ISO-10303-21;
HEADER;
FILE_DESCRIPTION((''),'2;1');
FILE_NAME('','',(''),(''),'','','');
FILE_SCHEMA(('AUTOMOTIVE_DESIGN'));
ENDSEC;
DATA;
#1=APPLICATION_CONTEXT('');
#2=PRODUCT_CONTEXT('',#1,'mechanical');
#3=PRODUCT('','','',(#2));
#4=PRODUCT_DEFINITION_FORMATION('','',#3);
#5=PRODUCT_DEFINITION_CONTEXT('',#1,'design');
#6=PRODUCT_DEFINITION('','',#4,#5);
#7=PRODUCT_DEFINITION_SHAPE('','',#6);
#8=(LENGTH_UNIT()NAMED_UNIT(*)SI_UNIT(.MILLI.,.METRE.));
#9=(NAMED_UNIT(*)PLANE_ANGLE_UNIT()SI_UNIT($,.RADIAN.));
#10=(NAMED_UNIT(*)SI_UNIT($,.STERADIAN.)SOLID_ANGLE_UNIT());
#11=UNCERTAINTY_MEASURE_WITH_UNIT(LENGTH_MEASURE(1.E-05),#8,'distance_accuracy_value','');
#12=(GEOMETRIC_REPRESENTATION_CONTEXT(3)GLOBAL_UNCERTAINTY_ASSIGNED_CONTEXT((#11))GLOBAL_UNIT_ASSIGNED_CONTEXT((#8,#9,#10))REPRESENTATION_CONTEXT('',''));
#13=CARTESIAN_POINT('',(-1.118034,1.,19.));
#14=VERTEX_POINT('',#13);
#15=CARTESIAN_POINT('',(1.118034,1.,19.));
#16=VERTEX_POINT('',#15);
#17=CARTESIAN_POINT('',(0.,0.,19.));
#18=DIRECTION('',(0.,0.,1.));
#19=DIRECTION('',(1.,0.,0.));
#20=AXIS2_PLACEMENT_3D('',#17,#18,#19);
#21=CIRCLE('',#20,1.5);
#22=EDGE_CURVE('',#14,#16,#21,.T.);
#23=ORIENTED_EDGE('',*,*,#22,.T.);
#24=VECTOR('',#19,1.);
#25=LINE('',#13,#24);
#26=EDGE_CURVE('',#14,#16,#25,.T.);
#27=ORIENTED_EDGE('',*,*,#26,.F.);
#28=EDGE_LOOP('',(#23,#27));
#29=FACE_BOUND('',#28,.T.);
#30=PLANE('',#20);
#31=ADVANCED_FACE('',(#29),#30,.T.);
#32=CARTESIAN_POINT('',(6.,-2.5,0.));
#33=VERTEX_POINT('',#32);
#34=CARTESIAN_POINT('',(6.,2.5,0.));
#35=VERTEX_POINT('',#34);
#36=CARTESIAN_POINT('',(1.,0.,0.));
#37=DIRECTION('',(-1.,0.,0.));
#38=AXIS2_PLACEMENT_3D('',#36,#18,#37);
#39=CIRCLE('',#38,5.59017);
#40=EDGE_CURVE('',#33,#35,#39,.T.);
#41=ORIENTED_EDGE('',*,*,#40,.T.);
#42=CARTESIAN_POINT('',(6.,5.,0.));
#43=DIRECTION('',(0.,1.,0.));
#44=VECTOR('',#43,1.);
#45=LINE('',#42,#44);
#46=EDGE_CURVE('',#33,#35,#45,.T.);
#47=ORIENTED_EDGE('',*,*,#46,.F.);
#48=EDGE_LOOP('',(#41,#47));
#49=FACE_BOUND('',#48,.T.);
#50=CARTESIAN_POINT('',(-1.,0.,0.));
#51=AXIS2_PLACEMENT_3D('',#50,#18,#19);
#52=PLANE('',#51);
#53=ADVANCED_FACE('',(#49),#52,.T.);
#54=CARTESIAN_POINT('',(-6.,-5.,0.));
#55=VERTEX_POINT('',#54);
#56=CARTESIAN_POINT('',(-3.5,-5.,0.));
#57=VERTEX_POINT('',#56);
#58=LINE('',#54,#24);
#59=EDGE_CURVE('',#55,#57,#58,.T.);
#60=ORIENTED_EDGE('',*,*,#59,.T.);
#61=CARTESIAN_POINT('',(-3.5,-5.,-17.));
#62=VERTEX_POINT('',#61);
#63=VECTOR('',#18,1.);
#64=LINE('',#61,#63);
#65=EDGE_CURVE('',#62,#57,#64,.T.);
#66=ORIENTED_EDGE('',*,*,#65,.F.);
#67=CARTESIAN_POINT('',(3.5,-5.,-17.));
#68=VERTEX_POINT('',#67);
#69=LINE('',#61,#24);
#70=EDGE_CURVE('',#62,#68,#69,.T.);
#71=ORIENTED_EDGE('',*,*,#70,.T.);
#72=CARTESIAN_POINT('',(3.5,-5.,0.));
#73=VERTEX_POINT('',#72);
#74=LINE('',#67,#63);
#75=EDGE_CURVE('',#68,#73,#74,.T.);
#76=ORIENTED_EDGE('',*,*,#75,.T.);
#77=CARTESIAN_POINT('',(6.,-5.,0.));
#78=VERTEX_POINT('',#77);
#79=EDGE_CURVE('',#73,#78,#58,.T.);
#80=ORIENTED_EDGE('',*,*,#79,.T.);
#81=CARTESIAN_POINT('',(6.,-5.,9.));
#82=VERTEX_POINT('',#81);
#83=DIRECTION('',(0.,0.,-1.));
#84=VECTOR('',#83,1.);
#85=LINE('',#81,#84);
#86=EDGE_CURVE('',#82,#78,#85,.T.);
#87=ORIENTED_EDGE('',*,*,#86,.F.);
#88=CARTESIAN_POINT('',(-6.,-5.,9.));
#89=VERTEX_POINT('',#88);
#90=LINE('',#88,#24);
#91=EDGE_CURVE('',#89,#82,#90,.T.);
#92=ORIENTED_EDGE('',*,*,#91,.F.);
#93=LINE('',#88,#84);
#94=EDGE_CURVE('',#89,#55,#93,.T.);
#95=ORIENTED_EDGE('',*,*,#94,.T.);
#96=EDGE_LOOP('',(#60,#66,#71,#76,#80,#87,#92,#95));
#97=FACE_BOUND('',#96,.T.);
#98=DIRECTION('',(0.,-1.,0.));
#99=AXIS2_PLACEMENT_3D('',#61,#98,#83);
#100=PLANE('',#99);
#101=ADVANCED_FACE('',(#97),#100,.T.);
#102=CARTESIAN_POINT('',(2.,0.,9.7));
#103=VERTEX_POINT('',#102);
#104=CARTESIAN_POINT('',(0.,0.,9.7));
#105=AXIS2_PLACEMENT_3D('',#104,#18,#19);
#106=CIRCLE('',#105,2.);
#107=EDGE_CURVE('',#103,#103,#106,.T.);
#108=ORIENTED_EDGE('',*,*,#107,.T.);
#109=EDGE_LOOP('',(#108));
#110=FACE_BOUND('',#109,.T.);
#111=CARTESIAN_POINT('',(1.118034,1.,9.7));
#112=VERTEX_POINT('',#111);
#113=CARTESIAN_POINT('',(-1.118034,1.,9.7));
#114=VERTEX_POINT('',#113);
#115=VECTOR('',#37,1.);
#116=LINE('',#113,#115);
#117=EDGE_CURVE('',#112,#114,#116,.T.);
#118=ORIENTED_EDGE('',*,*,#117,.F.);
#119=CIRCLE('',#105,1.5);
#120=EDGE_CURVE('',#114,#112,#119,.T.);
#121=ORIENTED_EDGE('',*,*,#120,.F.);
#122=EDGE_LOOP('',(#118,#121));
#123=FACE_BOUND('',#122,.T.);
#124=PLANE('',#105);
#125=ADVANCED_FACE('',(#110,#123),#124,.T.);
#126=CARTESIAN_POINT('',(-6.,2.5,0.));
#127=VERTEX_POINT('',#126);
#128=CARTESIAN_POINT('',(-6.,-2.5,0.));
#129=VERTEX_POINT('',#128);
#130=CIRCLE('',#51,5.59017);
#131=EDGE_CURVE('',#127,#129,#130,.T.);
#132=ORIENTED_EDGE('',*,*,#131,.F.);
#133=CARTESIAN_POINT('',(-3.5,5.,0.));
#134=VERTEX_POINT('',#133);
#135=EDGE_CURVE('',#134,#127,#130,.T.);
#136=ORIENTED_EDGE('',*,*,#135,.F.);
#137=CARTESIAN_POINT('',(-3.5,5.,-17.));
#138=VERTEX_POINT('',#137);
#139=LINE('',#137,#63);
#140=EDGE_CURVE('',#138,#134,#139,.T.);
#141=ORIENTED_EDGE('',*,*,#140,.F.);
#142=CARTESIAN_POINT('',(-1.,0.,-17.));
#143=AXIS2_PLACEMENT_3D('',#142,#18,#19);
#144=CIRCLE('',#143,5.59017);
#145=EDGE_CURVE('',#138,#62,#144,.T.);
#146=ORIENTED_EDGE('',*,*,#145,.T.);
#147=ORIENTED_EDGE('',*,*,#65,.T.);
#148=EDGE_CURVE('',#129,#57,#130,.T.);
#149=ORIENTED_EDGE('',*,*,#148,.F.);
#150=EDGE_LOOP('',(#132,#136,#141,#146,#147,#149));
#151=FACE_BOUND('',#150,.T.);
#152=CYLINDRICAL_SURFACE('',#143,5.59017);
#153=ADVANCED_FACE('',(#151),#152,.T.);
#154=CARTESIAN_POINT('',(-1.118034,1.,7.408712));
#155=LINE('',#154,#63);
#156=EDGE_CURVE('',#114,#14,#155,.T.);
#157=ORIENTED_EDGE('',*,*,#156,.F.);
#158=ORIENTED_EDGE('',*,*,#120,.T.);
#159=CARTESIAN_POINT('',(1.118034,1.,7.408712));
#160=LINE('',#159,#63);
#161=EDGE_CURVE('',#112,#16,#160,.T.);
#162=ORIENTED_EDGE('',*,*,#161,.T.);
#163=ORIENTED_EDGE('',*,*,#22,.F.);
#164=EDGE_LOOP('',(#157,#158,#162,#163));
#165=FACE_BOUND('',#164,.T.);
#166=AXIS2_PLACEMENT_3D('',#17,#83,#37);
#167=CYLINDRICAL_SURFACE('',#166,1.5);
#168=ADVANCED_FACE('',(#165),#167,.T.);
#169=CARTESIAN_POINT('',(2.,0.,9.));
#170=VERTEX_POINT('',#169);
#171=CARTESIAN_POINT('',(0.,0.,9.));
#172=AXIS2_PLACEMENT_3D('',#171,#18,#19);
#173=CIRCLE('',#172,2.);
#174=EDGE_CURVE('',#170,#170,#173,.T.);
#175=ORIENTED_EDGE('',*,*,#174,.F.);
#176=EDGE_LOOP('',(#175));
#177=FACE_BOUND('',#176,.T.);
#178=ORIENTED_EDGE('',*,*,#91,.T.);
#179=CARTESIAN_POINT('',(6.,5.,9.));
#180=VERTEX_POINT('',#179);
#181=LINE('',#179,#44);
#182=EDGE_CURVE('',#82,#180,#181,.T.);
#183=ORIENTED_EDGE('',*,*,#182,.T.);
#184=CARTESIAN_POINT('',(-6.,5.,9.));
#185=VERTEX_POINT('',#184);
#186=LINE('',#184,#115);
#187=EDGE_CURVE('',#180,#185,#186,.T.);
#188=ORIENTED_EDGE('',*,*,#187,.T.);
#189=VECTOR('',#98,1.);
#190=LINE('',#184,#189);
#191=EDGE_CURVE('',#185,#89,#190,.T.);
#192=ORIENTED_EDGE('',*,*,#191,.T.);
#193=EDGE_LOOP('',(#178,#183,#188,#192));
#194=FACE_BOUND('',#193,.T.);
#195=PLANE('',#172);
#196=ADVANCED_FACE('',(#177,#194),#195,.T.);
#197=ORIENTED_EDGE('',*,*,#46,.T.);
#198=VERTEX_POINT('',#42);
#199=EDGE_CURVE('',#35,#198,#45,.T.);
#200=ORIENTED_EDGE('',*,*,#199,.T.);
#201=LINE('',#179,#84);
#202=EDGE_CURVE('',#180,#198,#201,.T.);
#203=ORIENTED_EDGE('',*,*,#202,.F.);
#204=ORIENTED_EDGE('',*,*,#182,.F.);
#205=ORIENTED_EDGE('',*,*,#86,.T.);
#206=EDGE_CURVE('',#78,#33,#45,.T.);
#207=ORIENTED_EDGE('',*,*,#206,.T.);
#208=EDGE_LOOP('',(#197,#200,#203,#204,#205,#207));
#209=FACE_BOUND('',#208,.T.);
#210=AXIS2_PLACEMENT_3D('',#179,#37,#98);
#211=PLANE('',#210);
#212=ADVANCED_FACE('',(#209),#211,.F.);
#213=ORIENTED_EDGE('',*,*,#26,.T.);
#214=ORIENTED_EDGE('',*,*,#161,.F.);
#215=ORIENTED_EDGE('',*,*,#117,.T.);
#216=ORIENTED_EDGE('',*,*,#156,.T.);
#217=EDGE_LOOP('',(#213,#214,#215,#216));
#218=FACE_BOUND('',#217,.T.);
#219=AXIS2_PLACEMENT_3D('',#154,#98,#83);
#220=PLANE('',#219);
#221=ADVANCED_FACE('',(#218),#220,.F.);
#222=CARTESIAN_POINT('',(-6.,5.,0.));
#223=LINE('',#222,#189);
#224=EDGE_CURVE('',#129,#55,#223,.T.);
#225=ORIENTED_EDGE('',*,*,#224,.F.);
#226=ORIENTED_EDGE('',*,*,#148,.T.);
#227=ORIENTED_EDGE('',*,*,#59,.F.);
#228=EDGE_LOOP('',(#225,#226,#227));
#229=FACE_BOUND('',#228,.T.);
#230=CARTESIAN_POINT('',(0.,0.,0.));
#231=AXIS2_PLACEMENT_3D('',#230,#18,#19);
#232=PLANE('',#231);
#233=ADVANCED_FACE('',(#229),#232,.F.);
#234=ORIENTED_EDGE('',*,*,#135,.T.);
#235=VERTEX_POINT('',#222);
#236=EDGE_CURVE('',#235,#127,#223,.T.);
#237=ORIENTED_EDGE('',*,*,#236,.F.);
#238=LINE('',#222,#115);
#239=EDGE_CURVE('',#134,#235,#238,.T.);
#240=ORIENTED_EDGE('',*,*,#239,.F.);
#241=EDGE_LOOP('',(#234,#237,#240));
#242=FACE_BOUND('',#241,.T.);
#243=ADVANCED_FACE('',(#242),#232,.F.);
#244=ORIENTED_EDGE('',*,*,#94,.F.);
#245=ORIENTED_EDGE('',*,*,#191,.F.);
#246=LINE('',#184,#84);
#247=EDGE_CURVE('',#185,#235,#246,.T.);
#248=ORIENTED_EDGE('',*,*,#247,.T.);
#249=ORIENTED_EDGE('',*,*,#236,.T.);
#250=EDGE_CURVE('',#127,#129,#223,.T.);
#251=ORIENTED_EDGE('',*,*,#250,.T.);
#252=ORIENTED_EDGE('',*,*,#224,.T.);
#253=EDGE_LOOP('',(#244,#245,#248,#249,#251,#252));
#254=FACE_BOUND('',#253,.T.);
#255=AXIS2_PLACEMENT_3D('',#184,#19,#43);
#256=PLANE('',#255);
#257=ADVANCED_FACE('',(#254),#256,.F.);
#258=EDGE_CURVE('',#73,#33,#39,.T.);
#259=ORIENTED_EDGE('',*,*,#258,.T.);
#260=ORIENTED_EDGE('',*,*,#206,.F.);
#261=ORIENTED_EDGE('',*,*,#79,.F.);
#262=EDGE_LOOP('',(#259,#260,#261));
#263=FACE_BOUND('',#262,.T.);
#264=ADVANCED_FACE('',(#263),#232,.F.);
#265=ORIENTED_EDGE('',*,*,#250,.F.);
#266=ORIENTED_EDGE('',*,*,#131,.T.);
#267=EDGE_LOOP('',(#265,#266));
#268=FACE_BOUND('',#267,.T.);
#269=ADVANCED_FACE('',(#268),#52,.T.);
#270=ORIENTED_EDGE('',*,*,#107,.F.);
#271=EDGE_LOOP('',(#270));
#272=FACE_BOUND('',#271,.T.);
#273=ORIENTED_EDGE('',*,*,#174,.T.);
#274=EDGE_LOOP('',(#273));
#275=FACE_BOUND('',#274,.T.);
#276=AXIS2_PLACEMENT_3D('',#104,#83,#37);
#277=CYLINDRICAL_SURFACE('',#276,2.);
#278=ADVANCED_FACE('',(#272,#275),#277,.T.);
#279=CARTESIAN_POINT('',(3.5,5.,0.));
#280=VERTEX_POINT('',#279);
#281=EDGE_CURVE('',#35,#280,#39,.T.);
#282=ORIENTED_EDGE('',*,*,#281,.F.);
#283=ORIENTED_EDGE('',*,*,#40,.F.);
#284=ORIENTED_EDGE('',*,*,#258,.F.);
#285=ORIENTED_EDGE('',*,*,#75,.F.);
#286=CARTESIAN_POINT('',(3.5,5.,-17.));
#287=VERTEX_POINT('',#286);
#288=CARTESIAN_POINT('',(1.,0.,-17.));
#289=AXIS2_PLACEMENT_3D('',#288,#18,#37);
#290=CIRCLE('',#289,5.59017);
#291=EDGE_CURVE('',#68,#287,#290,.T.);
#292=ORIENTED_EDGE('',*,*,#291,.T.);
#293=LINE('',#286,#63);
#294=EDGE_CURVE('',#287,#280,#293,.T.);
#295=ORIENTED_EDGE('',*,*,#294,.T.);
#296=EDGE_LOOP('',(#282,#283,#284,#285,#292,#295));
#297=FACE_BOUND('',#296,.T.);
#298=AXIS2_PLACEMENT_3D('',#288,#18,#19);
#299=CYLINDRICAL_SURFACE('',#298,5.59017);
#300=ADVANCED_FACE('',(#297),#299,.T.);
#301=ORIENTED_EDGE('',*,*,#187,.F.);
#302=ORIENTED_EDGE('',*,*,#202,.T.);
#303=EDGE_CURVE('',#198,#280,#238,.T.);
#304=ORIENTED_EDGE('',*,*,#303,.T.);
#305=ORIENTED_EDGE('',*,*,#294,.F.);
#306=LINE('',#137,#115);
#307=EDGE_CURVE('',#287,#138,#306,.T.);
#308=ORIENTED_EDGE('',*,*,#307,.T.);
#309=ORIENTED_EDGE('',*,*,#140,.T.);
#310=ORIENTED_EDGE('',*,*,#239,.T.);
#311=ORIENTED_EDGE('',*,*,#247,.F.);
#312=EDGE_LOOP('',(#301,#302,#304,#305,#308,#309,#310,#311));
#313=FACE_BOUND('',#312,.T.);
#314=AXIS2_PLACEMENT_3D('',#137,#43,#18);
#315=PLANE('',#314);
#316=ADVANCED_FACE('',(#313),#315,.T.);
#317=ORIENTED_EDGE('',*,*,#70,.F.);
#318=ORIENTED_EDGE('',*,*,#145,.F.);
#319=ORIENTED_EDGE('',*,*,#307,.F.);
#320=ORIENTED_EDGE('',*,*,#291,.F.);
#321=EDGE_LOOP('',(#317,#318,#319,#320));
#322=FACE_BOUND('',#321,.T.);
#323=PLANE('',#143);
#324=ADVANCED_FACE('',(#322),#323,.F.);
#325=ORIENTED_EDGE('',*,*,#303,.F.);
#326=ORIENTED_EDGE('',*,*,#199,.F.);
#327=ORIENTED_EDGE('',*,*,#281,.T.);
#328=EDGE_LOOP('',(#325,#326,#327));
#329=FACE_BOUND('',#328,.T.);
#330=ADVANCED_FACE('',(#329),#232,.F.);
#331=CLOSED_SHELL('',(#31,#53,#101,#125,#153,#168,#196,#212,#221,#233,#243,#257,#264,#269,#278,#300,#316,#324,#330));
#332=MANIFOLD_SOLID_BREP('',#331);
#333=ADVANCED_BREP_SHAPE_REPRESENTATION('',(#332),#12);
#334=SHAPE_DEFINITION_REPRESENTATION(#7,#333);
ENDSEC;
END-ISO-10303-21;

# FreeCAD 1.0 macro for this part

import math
import FreeCAD as App
import Part
import Sketcher
from FreeCAD import Vector
Q = App.Units.Quantity


def add_polygon(sketch, points):
    """Adds a closed chain of lines whose ends are joined by coincident constraints."""
    first, n = sketch.GeometryCount, len(points)
    for a, b in zip(points, points[1:] + points[:1]):
        sketch.addGeometry(Part.LineSegment(App.Vector(*a, 0), App.Vector(*b, 0)), False)
    for i in range(n):
        sketch.addConstraint(Sketcher.Constraint("Coincident", first + i, 2, first + (i + 1) % n, 1))

doc = App.newDocument("Part")
body = doc.addObject("PartDesign::Body", "Body")

# Sketch on XY plane
sketch1 = body.newObject("Sketcher::SketchObject", "Sketch")
sketch1.AttachmentSupport = (doc.getObject("XY_Plane"), [""])
sketch1.MapMode = "FlatFace"
sketch1.addGeometry([
    Part.LineSegment(Vector(3.5, 5, 0), Vector(-3.5, 5, 0)),
    Part.ArcOfCircle(Part.Circle(Vector(-1, 0, 0), Vector(0, 0, 1), 5.59017), math.radians(116.565051), math.radians(243.434949)),
    Part.LineSegment(Vector(-3.5, -5, 0), Vector(3.5, -5, 0)),
    Part.ArcOfCircle(Part.Circle(Vector(1, 0, 0), Vector(0, 0, 1), 5.59017), math.radians(-63.434949), math.radians(63.434949)),
], False)
sketch1.addConstraint([
    Sketcher.Constraint("Coincident", 0, 2, 1, 1),
    Sketcher.Constraint("Coincident", 1, 2, 2, 1),
    Sketcher.Constraint("Coincident", 2, 2, 3, 1),
    Sketcher.Constraint("Coincident", 3, 2, 0, 1),
    Sketcher.Constraint("Horizontal", 0),
    Sketcher.Constraint("Horizontal", 2),
    Sketcher.Constraint("Equal", 1, 3),
    Sketcher.Constraint("Symmetric", 1, 3, 3, 3, -1, 1),
    Sketcher.Constraint("Symmetric", 0, 2, 1, 2, -1),
    Sketcher.Constraint("DistanceX", 0, 2, 0, 1, Q("7 mm")),
    Sketcher.Constraint("DistanceX", 1, 3, -1, 1, Q("1 mm")),
    Sketcher.Constraint("DistanceY", -1, 1, 0, 2, Q("5 mm")),
])
pad1 = body.newObject("PartDesign::Pad", "Pad")
pad1.Profile = sketch1
pad1.Length = 17
pad1.Reversed = True

# Sketch on XY plane
sketch2 = body.newObject("Sketcher::SketchObject", "Sketch001")
sketch2.AttachmentSupport = (doc.getObject("XY_Plane"), [""])
sketch2.MapMode = "FlatFace"
add_polygon(sketch2, [(-6, 5), (-6, -5), (6, -5), (6, 5)])  # lines 0-3
sketch2.addConstraint([
    Sketcher.Constraint("Vertical", 0),
    Sketcher.Constraint("Horizontal", 1),
    Sketcher.Constraint("Vertical", 2),
    Sketcher.Constraint("Horizontal", 3),
    Sketcher.Constraint("Symmetric", 0, 2, 2, 2, -1, 1),
    Sketcher.Constraint("DistanceX", 1, 1, 1, 2, Q("12 mm")),
    Sketcher.Constraint("DistanceY", 0, 2, 0, 1, Q("10 mm")),
])
pad2 = body.newObject("PartDesign::Pad", "Pad001")
pad2.Profile = sketch2
pad2.Length = 9

# Sketch on XY plane
sketch3 = body.newObject("Sketcher::SketchObject", "Sketch002")
sketch3.AttachmentSupport = (doc.getObject("XY_Plane"), [""])
sketch3.MapMode = "FlatFace"
sketch3.AttachmentOffset = App.Placement(Vector(0, 0, 9), App.Rotation())
sketch3.addGeometry(Part.Circle(Vector(0, 0, 0), Vector(0, 0, 1), 2), False)
sketch3.addConstraint([
    Sketcher.Constraint("Coincident", 0, 3, -1, 1),
    Sketcher.Constraint("Diameter", 0, Q("4 mm")),
])
pad3 = body.newObject("PartDesign::Pad", "Pad002")
pad3.Profile = sketch3
pad3.Length = 0.7

# Sketch on XY plane
sketch4 = body.newObject("Sketcher::SketchObject", "Sketch003")
sketch4.AttachmentSupport = (doc.getObject("XY_Plane"), [""])
sketch4.MapMode = "FlatFace"
sketch4.AttachmentOffset = App.Placement(Vector(0, 0, 9.7), App.Rotation())
sketch4.addGeometry(Part.Circle(Vector(0, 0, 0), Vector(0, 0, 1), 1.5), False)
sketch4.addConstraint([
    Sketcher.Constraint("Coincident", 0, 3, -1, 1),
    Sketcher.Constraint("Diameter", 0, Q("3 mm")),
])
pad4 = body.newObject("PartDesign::Pad", "Pad003")
pad4.Profile = sketch4
pad4.Length = 9.3

# Sketch on XY plane
sketch5 = body.newObject("Sketcher::SketchObject", "Sketch004")
sketch5.AttachmentSupport = (doc.getObject("XY_Plane"), [""])
sketch5.MapMode = "FlatFace"
sketch5.AttachmentOffset = App.Placement(Vector(0, 0, 9.7), App.Rotation())
sketch5.addGeometry([
    Part.LineSegment(Vector(-1.118034, 1, 0), Vector(1.118034, 1, 0)),
    Part.ArcOfCircle(Part.Circle(Vector(0, 0, 0), Vector(0, 0, 1), 1.5), math.radians(41.810315), math.radians(138.189685)),
], False)
sketch5.addConstraint([
    Sketcher.Constraint("Coincident", 0, 1, 1, 2),
    Sketcher.Constraint("Coincident", 1, 1, 0, 2),
    Sketcher.Constraint("Horizontal", 0),
    Sketcher.Constraint("Coincident", 1, 3, -1, 1),
    Sketcher.Constraint("Radius", 1, Q("1.5 mm")),
    Sketcher.Constraint("DistanceY", -1, 1, 0, 1, Q("1 mm")),
])
pocket1 = body.newObject("PartDesign::Pocket", "Pocket")
pocket1.Profile = sketch5
pocket1.Length = 9.3
pocket1.Reversed = True

doc.recompute()
